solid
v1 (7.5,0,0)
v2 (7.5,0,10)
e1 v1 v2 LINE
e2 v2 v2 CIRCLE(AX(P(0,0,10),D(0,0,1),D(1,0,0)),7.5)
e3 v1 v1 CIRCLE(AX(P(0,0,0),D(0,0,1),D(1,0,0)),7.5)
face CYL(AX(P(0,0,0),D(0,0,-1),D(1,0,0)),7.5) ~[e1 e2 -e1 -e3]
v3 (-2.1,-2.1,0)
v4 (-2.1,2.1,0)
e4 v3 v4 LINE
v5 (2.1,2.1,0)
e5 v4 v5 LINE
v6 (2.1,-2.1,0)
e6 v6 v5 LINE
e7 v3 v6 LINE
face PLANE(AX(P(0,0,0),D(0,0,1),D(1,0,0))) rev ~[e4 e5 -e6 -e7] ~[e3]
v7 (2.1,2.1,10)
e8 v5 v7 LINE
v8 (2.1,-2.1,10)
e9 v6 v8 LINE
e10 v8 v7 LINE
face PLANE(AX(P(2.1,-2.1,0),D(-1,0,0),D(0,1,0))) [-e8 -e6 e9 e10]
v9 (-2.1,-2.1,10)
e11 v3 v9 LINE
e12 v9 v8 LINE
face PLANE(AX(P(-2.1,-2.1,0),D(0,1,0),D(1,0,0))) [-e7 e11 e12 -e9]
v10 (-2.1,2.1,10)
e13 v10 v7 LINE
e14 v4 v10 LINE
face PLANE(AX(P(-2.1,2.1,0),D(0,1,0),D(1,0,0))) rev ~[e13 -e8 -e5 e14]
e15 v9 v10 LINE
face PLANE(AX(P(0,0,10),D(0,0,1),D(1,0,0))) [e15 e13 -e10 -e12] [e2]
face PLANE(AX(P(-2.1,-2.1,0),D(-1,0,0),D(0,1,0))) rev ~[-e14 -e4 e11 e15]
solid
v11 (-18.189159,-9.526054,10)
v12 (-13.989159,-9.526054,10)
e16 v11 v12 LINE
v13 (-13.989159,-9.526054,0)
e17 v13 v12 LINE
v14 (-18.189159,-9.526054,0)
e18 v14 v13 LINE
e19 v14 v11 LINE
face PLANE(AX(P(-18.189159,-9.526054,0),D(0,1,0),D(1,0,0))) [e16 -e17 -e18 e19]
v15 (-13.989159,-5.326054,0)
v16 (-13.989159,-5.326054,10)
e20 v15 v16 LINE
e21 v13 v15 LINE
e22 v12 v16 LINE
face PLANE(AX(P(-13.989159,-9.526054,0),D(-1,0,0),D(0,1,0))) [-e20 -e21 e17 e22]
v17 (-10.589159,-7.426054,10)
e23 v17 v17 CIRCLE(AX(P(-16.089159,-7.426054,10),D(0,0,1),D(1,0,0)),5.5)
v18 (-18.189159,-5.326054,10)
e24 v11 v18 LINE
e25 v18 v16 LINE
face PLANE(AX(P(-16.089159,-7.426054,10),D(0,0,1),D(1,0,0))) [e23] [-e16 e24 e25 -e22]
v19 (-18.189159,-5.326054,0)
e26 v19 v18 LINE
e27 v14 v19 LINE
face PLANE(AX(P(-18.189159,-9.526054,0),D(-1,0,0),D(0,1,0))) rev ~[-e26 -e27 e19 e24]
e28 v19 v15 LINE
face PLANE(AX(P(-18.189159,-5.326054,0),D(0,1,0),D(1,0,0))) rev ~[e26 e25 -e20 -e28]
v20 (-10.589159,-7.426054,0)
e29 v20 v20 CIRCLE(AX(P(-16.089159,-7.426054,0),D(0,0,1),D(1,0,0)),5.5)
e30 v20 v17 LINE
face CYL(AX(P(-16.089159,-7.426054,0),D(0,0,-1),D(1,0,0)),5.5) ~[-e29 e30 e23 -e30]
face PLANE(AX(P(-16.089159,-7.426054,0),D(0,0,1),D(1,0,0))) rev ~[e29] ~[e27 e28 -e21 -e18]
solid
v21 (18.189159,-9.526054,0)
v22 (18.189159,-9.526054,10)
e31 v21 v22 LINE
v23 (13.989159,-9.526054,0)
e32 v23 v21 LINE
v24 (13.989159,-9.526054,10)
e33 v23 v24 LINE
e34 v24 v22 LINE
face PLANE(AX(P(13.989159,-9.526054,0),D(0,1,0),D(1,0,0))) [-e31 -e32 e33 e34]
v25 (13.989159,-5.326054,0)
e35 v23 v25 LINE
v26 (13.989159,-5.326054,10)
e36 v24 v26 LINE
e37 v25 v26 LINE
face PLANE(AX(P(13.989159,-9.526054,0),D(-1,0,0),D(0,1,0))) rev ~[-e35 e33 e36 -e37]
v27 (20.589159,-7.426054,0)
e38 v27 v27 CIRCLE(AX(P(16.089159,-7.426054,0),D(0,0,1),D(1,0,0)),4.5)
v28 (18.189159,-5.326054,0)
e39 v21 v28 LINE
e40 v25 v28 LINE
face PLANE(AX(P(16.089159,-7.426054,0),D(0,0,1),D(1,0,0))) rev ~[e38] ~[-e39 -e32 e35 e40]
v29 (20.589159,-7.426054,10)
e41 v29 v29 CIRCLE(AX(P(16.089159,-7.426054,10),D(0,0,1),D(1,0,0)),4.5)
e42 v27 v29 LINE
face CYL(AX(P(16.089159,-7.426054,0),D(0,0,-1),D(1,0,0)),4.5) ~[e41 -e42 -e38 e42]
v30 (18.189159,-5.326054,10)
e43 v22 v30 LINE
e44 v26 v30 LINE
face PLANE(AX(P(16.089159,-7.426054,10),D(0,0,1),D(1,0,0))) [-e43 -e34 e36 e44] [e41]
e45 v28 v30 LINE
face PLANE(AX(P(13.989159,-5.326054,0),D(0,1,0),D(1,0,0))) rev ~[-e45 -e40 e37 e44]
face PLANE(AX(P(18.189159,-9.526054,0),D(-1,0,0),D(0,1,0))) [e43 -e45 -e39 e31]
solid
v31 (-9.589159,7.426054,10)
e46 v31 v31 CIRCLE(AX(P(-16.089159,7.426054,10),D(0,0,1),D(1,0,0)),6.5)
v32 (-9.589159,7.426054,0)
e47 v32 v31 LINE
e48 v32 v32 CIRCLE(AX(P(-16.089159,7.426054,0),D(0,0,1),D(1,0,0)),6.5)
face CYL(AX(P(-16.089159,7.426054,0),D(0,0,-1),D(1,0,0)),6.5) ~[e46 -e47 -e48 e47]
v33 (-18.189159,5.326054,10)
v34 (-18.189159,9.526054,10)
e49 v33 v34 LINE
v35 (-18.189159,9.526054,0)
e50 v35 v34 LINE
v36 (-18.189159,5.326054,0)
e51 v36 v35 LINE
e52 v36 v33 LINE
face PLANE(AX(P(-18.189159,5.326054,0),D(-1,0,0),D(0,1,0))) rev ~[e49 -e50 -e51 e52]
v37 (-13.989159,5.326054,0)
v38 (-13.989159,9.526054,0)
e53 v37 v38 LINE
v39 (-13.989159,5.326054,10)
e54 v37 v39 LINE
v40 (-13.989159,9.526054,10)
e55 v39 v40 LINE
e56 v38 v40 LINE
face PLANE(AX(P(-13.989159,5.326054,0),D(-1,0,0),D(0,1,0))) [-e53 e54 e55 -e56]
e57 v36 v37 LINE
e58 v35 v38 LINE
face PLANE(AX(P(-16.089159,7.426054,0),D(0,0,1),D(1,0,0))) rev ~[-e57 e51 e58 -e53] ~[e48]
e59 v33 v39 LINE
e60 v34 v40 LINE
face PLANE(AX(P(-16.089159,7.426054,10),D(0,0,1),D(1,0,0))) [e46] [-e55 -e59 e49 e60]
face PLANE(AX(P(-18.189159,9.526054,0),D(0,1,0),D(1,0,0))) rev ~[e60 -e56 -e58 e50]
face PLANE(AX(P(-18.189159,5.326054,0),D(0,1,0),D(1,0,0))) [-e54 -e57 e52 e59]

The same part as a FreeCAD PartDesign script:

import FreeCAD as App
import Part
import Sketcher

V = App.Vector

doc = App.newDocument("Part")
params = doc.addObject("Spreadsheet::Sheet", "Params")
for row, (alias, value) in enumerate([
    ("sketch1_diameter", "13 mm"),
    ("sketch1_diameter2", "11 mm"),
    ("sketch1_diameter3", "15 mm"),
    ("sketch1_diameter4", "9 mm"),
    ("sketch1_width", "4.2 mm"),
    ("pad1_length", "10 mm"),
], start=1):
    params.set(f"A{row}", alias)
    params.set(f"B{row}", "=" + value)
    params.setAlias(f"B{row}", alias)

body = doc.addObject("PartDesign::Body", "Body")
body.AllowCompound = True

sketch1 = doc.addObject("Sketcher::SketchObject", "Sketch")
body.addObject(sketch1)
sketch1.AttachmentSupport = (doc.XY_Plane, [""])
sketch1.MapMode = "FlatFace"
sketch1.addGeometry(Part.Circle(V(-16.1, 7.4, 0), V(0, 0, 1), 6.5), False)
sketch1.addGeometry(Part.LineSegment(V(-14, 5.3, 0), V(-18.2, 5.3, 0)), False)
sketch1.addGeometry(Part.LineSegment(V(-18.2, 5.3, 0), V(-18.2, 9.5, 0)), False)
sketch1.addGeometry(Part.LineSegment(V(-18.2, 9.5, 0), V(-14, 9.5, 0)), False)
sketch1.addGeometry(Part.LineSegment(V(-14, 9.5, 0), V(-14, 5.3, 0)), False)
sketch1.addGeometry(Part.Circle(V(-16.1, -7.4, 0), V(0, 0, 1), 5.5), False)
sketch1.addGeometry(Part.LineSegment(V(-14, -9.5, 0), V(-18.2, -9.5, 0)), False)
sketch1.addGeometry(Part.LineSegment(V(-18.2, -9.5, 0), V(-18.2, -5.3, 0)), False)
sketch1.addGeometry(Part.LineSegment(V(-18.2, -5.3, 0), V(-14, -5.3, 0)), False)
sketch1.addGeometry(Part.LineSegment(V(-14, -5.3, 0), V(-14, -9.5, 0)), False)
sketch1.addGeometry(Part.Circle(V(0, 0, 0), V(0, 0, 1), 7.5), False)
sketch1.addGeometry(Part.LineSegment(V(2.1, -2.1, 0), V(-2.1, -2.1, 0)), False)
sketch1.addGeometry(Part.LineSegment(V(-2.1, -2.1, 0), V(-2.1, 2.1, 0)), False)
sketch1.addGeometry(Part.LineSegment(V(-2.1, 2.1, 0), V(2.1, 2.1, 0)), False)
sketch1.addGeometry(Part.LineSegment(V(2.1, 2.1, 0), V(2.1, -2.1, 0)), False)
sketch1.addGeometry(Part.Circle(V(16.1, -7.4, 0), V(0, 0, 1), 4.5), False)
sketch1.addGeometry(Part.LineSegment(V(18.2, -9.5, 0), V(14, -9.5, 0)), False)
sketch1.addGeometry(Part.LineSegment(V(14, -9.5, 0), V(14, -5.3, 0)), False)
sketch1.addGeometry(Part.LineSegment(V(14, -5.3, 0), V(18.2, -5.3, 0)), False)
sketch1.addGeometry(Part.LineSegment(V(18.2, -5.3, 0), V(18.2, -9.5, 0)), False)
sketch1.addConstraint(Sketcher.Constraint("Coincident", 1, 2, 2, 1))
sketch1.addConstraint(Sketcher.Constraint("Coincident", 2, 2, 3, 1))
sketch1.addConstraint(Sketcher.Constraint("Coincident", 3, 2, 4, 1))
sketch1.addConstraint(Sketcher.Constraint("Coincident", 4, 2, 1, 1))
sketch1.addConstraint(Sketcher.Constraint("Coincident", 6, 2, 7, 1))
sketch1.addConstraint(Sketcher.Constraint("Coincident", 7, 2, 8, 1))
sketch1.addConstraint(Sketcher.Constraint("Coincident", 8, 2, 9, 1))
sketch1.addConstraint(Sketcher.Constraint("Coincident", 9, 2, 6, 1))
sketch1.addConstraint(Sketcher.Constraint("Coincident", 11, 2, 12, 1))
sketch1.addConstraint(Sketcher.Constraint("Coincident", 12, 2, 13, 1))
sketch1.addConstraint(Sketcher.Constraint("Coincident", 13, 2, 14, 1))
sketch1.addConstraint(Sketcher.Constraint("Coincident", 14, 2, 11, 1))
sketch1.addConstraint(Sketcher.Constraint("Coincident", 16, 2, 17, 1))
sketch1.addConstraint(Sketcher.Constraint("Coincident", 17, 2, 18, 1))
sketch1.addConstraint(Sketcher.Constraint("Coincident", 18, 2, 19, 1))
sketch1.addConstraint(Sketcher.Constraint("Coincident", 19, 2, 16, 1))
sketch1.addConstraint(Sketcher.Constraint("Horizontal", 1))
sketch1.addConstraint(Sketcher.Constraint("Vertical", 2))
sketch1.addConstraint(Sketcher.Constraint("Horizontal", 3))
sketch1.addConstraint(Sketcher.Constraint("Vertical", 4))
sketch1.addConstraint(Sketcher.Constraint("Horizontal", 6))
sketch1.addConstraint(Sketcher.Constraint("Vertical", 7))
sketch1.addConstraint(Sketcher.Constraint("Horizontal", 8))
sketch1.addConstraint(Sketcher.Constraint("Vertical", 9))
sketch1.addConstraint(Sketcher.Constraint("Horizontal", 11))
sketch1.addConstraint(Sketcher.Constraint("Vertical", 12))
sketch1.addConstraint(Sketcher.Constraint("Horizontal", 13))
sketch1.addConstraint(Sketcher.Constraint("Vertical", 14))
sketch1.addConstraint(Sketcher.Constraint("Horizontal", 16))
sketch1.addConstraint(Sketcher.Constraint("Vertical", 17))
sketch1.addConstraint(Sketcher.Constraint("Horizontal", 18))
sketch1.addConstraint(Sketcher.Constraint("Vertical", 19))
sketch1.addConstraint(Sketcher.Constraint("Coincident", 10, 3, -1, 1))
sketch1.addConstraint(Sketcher.Constraint("Symmetric", 0, 3, 15, 3, -1, 1))
sketch1.addConstraint(Sketcher.Constraint("Symmetric", 11, 2, 13, 2, -1, 1))
sketch1.addConstraint(Sketcher.Constraint("Symmetric", 3, 2, 16, 2, -1, 1))
sketch1.addConstraint(Sketcher.Constraint("Symmetric", 1, 2, 18, 2, -1, 1))
sketch1.addConstraint(Sketcher.Constraint("Symmetric", 5, 3, 15, 3, -2))
sketch1.addConstraint(Sketcher.Constraint("Symmetric", 9, 2, 16, 2, -2))
sketch1.addConstraint(Sketcher.Constraint("Symmetric", 7, 2, 18, 2, -2))
sketch1.addConstraint(Sketcher.Constraint("Equal", 8, 11))
sketch1.addConstraint(Sketcher.Constraint("Equal", 18, 2))
sketch1.addConstraint(Sketcher.Constraint("Equal", 9, 12))
sketch1.addConstraint(Sketcher.Constraint("Diameter", 0, 13.0))
sketch1.addConstraint(Sketcher.Constraint("Diameter", 5, 11.0))
sketch1.addConstraint(Sketcher.Constraint("Diameter", 10, 15.0))
sketch1.addConstraint(Sketcher.Constraint("Diameter", 15, 9.0))
sketch1.addConstraint(Sketcher.Constraint("DistanceX", 1, 2, 1, 1, 4.2))
sketch1.addConstraint(Sketcher.Constraint("DistanceX", 1, 2, 0, 3, 2.1))
sketch1.addConstraint(Sketcher.Constraint("DistanceY", 1, 2, 0, 3, 2.1))
sketch1.addConstraint(Sketcher.Constraint("DistanceX", 0, 3, -1, 1, 16.089159))
sketch1.addConstraint(Sketcher.Constraint("DistanceY", 6, 2, 1, 2, 14.852108))
sketch1.setExpression("Constraints[43]", "Params.sketch1_diameter")
sketch1.setExpression("Constraints[44]", "Params.sketch1_diameter2")
sketch1.setExpression("Constraints[45]", "Params.sketch1_diameter3")
sketch1.setExpression("Constraints[46]", "Params.sketch1_diameter4")
sketch1.setExpression("Constraints[47]", "Params.sketch1_width")
pad1 = doc.addObject("PartDesign::Pad", "Pad")
body.addObject(pad1)
pad1.Profile = sketch1
pad1.setExpression("Length", "Params.pad1_length")

doc.recompute()
